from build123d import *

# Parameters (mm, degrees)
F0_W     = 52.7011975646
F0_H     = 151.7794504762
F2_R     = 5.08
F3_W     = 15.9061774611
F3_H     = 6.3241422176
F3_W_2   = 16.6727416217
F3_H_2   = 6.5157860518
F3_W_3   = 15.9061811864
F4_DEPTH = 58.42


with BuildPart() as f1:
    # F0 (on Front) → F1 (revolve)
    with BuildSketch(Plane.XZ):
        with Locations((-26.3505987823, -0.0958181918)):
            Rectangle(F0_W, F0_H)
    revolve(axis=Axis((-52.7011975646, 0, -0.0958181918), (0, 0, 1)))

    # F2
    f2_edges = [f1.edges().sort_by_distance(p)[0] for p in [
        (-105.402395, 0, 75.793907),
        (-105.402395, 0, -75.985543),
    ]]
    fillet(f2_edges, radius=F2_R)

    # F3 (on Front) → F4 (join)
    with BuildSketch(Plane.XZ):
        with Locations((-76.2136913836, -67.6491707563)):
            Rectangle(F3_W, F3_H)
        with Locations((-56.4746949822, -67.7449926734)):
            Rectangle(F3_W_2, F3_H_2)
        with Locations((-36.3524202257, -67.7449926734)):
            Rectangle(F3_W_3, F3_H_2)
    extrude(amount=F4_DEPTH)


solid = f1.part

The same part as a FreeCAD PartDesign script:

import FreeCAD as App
import Part
import Sketcher

V = App.Vector
Q = App.Units.Quantity


def edges_at(feature, points):
    """Names of the edges that pass closest to the given points."""
    edges = feature.Shape.Edges
    near = lambda p: min(range(len(edges)), key=lambda i: edges[i].distToShape(Part.Vertex(*p))[0])
    return sorted({f"Edge{near(p) + 1}" for p in points})


def add_polygon(sketch, points):
    """Adds a closed chain of lines whose ends are joined by coincident constraints."""
    first, n = sketch.GeometryCount, len(points)
    for a, b in zip(points, points[1:] + points[:1]):
        sketch.addGeometry(Part.LineSegment(App.Vector(*a, 0), App.Vector(*b, 0)), False)
    for i in range(n):
        sketch.addConstraint(Sketcher.Constraint("Coincident", first + i, 2, first + (i + 1) % n, 1))

doc = App.newDocument("Part")
body = doc.addObject("PartDesign::Body", "Body")

sketch1 = body.newObject("Sketcher::SketchObject", "Sketch")
sketch1.AttachmentSupport = (doc.getObject("XZ_Plane"), [""])
sketch1.MapMode = "FlatFace"
add_polygon(sketch1, [(-53, 76), (-53, -76), (0, -76), (0, 76)])
sketch1.addGeometry(Part.LineSegment(V(-53, -76, 0), V(-53, 76, 0)), True)
sketch1.addConstraint(Sketcher.Constraint("Vertical", 0))
sketch1.addConstraint(Sketcher.Constraint("Horizontal", 1))
sketch1.addConstraint(Sketcher.Constraint("Vertical", 2))
sketch1.addConstraint(Sketcher.Constraint("Horizontal", 3))
sketch1.addConstraint(Sketcher.Constraint("Vertical", 4))
sketch1.addConstraint(Sketcher.Constraint("Coincident", 4, 1, 0, 2))
sketch1.addConstraint(Sketcher.Constraint("PointOnObject", 1, 2, -2))
sketch1.addConstraint(Sketcher.Constraint("Horizontal", 2, 2, 4, 2))
sketch1.addConstraint(Sketcher.Constraint("DistanceY", 0, 2, 0, 1, 151.77945))
sketch1.addConstraint(Sketcher.Constraint("DistanceX", 1, 1, 1, 2, 52.701198))
sketch1.addConstraint(Sketcher.Constraint("DistanceY", 0, 2, -1, 1, 75.985543))
revolution = body.newObject("PartDesign::Revolution", "Revolution")
revolution.Profile = sketch1
revolution.ReferenceAxis = (sketch1, ["Axis0"])
revolution.Angle = 360
doc.recompute()

fillet = body.newObject("PartDesign::Fillet", "Fillet")
fillet.Base = (revolution, edges_at(revolution, [(-105.402, 0, 75.794), (-105.402, 0, -75.986)]))
fillet.Radius = Q("0.2 in")

sketch2 = body.newObject("Sketcher::SketchObject", "Sketch001")
sketch2.AttachmentSupport = (doc.getObject("XZ_Plane"), [""])
sketch2.MapMode = "FlatFace"
add_polygon(sketch2, [(-84, -64), (-84, -71), (-68, -71), (-68, -64)])
add_polygon(sketch2, [(-65, -64), (-65, -71), (-48, -71), (-48, -64)])
add_polygon(sketch2, [(-44, -64), (-44, -71), (-28, -71), (-28, -64)])
sketch2.addConstraint(Sketcher.Constraint("Vertical", 0))
sketch2.addConstraint(Sketcher.Constraint("Horizontal", 1))
sketch2.addConstraint(Sketcher.Constraint("Vertical", 2))
sketch2.addConstraint(Sketcher.Constraint("Horizontal", 3))
sketch2.addConstraint(Sketcher.Constraint("Vertical", 4))
sketch2.addConstraint(Sketcher.Constraint("Horizontal", 5))
sketch2.addConstraint(Sketcher.Constraint("Vertical", 6))
sketch2.addConstraint(Sketcher.Constraint("Horizontal", 7))
sketch2.addConstraint(Sketcher.Constraint("Vertical", 8))
sketch2.addConstraint(Sketcher.Constraint("Horizontal", 9))
sketch2.addConstraint(Sketcher.Constraint("Vertical", 10))
sketch2.addConstraint(Sketcher.Constraint("Horizontal", 11))
sketch2.addConstraint(Sketcher.Constraint("Horizontal", 3, 2, 6, 2))
sketch2.addConstraint(Sketcher.Constraint("Horizontal", 5, 2, 8, 2))
sketch2.addConstraint(Sketcher.Constraint("Horizontal", 7, 2, 10, 2))
sketch2.addConstraint(Sketcher.Constraint("DistanceX", 5, 1, 5, 2, 16.672742))
sketch2.addConstraint(Sketcher.Constraint("DistanceX", 9, 1, 9, 2, 15.906181))
sketch2.addConstraint(Sketcher.Constraint("DistanceY", 2, 2, -1, 1, 64.4871))
sketch2.addConstraint(Sketcher.Constraint("DistanceX", 1, 1, 1, 2, 15.906177))
sketch2.addConstraint(Sketcher.Constraint("DistanceY", 0, 2, 0, 1, 6.324142))
sketch2.addConstraint(Sketcher.Constraint("DistanceY", 4, 2, 4, 1, 6.515786))
sketch2.addConstraint(Sketcher.Constraint("DistanceX", 0, 2, -1, 1, 84.16678))
sketch2.addConstraint(Sketcher.Constraint("DistanceX", 8, 2, -1, 1, 44.305511))
sketch2.addConstraint(Sketcher.Constraint("DistanceX", 1, 2, 5, 2, 20.122278))
pad1 = body.newObject("PartDesign::Pad", "Pad")
pad1.Profile = sketch2
pad1.Length = Q("2.3 in")

doc.recompute()
